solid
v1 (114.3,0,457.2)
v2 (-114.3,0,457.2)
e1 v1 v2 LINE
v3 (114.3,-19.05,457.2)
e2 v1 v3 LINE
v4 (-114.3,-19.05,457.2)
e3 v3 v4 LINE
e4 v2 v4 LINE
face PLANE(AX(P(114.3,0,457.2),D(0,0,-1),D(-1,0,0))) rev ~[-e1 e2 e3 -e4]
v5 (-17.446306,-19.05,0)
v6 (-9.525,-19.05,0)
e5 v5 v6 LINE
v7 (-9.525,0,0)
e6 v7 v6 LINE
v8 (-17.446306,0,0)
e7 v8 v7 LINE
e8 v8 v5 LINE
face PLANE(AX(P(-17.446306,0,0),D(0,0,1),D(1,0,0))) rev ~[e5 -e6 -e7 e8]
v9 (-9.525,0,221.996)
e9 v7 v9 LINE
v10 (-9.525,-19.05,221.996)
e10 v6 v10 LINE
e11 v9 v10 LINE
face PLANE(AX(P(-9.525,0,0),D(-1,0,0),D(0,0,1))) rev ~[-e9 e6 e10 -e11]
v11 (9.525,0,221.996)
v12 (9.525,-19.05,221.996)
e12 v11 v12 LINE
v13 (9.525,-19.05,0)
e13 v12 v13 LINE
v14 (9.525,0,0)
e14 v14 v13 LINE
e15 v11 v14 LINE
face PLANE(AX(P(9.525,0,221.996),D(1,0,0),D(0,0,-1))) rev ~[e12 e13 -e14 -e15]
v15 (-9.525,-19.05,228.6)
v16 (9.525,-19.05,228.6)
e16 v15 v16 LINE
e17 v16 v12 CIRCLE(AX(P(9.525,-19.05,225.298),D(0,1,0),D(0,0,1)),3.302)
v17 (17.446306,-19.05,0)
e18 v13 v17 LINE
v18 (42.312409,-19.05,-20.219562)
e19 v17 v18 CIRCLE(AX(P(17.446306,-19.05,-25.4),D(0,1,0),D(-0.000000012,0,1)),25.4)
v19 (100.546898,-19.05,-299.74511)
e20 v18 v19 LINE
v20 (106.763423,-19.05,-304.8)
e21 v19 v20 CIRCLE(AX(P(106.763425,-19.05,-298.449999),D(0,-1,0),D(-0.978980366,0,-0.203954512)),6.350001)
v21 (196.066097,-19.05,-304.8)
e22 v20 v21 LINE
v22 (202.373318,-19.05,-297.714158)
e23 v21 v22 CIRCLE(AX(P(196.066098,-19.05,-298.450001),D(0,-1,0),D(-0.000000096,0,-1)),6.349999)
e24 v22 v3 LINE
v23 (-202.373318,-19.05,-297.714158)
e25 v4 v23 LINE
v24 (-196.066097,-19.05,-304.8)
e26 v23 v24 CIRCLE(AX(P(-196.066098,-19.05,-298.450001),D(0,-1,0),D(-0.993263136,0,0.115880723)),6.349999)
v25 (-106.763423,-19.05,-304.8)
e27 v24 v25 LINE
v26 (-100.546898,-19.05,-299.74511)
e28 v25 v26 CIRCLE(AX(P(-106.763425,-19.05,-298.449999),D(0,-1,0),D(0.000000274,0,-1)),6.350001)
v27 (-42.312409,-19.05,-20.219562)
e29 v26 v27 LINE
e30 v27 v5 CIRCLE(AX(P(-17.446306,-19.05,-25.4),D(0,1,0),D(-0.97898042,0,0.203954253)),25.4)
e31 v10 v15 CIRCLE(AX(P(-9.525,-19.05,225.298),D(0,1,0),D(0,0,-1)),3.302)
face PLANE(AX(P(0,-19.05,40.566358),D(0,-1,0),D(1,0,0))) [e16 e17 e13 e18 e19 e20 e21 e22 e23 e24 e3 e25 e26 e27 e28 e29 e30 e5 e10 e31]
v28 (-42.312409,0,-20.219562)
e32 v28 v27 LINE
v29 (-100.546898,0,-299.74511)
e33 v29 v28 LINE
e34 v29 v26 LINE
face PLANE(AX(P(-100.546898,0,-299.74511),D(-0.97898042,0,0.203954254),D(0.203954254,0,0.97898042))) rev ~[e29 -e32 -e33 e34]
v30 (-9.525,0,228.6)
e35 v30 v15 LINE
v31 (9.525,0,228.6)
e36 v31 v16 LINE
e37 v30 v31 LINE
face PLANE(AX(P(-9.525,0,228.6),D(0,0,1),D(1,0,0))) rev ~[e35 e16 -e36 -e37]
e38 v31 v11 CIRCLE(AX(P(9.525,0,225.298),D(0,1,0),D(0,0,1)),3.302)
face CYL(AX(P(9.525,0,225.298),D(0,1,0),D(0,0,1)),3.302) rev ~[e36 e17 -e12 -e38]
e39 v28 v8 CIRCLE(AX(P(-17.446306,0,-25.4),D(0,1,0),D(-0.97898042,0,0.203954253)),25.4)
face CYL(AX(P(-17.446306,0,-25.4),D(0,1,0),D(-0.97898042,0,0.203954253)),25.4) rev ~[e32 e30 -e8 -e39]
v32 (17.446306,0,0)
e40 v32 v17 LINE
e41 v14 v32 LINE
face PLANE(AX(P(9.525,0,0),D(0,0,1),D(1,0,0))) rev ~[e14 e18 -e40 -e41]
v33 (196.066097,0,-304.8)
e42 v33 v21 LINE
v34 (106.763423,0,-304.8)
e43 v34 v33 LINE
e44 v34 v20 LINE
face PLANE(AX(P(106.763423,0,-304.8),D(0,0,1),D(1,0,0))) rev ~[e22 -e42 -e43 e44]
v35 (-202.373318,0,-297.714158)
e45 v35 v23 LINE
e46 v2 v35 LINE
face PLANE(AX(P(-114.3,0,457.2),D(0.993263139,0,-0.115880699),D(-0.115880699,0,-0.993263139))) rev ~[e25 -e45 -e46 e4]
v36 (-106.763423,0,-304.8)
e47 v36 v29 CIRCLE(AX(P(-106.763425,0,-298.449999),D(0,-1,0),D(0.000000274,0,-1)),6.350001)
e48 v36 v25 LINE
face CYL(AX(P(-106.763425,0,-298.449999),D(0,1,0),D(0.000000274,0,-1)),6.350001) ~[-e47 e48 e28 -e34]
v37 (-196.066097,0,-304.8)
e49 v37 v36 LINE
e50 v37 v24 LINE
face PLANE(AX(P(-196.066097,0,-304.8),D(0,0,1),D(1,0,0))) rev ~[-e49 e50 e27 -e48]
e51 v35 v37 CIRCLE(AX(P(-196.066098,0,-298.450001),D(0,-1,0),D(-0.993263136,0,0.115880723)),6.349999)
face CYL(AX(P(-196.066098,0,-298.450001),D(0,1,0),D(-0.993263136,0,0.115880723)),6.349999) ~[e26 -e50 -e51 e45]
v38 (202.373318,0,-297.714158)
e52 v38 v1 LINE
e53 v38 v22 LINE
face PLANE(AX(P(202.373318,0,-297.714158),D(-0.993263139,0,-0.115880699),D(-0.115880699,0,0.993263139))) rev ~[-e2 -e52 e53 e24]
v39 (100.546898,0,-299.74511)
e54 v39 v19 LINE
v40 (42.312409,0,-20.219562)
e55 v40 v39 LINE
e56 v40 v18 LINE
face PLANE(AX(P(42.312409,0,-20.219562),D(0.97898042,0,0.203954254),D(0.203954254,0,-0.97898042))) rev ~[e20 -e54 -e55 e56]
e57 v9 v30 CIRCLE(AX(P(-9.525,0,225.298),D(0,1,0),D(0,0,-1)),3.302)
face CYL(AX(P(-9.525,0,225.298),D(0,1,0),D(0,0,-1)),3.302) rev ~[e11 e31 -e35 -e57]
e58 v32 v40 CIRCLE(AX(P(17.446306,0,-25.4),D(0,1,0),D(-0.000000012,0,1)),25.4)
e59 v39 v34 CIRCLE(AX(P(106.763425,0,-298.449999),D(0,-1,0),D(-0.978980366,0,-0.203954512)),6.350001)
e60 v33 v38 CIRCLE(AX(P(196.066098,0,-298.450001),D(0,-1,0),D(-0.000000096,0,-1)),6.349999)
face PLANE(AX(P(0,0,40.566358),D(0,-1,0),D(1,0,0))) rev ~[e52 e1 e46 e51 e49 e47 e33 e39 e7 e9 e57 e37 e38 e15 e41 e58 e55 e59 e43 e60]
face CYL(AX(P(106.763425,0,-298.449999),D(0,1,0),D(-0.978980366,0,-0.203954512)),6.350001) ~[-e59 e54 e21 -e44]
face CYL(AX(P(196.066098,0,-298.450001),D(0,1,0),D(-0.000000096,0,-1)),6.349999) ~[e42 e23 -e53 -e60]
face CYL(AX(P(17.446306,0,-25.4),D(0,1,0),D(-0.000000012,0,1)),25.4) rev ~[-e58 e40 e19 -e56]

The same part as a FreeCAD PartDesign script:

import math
import FreeCAD as App
import Part
import Sketcher
from FreeCAD import Vector
Q = App.Units.Quantity

doc = App.newDocument("Part")
body = doc.addObject("PartDesign::Body", "Body")

# Sketch on XZ plane
sketch1 = doc.addObject("Sketcher::SketchObject", "Sketch")
body.addObject(sketch1)
sketch1.AttachmentSupport = (doc.XZ_Plane, [""])
sketch1.MapMode = "FlatFace"
sketch1.addGeometry([
    Part.LineSegment(Vector(-114.3, 457.2, 0), Vector(-202.373318, -297.714158, 0)),  # 0
    Part.ArcOfCircle(Part.Circle(Vector(-196.066098, -298.450001, 0), Vector(0, 0, 1), 6.349999), math.radians(173.345574), math.radians(270.000006)),  # 1
    Part.LineSegment(Vector(-196.066097, -304.8, 0), Vector(-106.763423, -304.8, 0)),  # 2
    Part.ArcOfCircle(Part.Circle(Vector(-106.763425, -298.449999, 0), Vector(0, 0, 1), 6.350001), math.radians(-89.999984), math.radians(-11.768304)),  # 3
    Part.LineSegment(Vector(-100.546898, -299.74511, 0), Vector(-42.312409, -20.219562, 0)),  # 4
    Part.ArcOfCircle(Part.Circle(Vector(-17.446306, -25.4, 0), Vector(0, 0, 1), 25.4), math.radians(89.999999), math.radians(168.231711)),  # 5
    Part.LineSegment(Vector(-17.446306, 0, 0), Vector(-9.525, 0, 0)),  # 6
    Part.LineSegment(Vector(-9.525, 0, 0), Vector(-9.525, 221.996, 0)),  # 7
    Part.ArcOfCircle(Part.Circle(Vector(-9.525, 225.298, 0), Vector(0, 0, 1), 3.302), math.radians(90), math.radians(270)),  # 8
    Part.LineSegment(Vector(-9.525, 228.6, 0), Vector(9.525, 228.6, 0)),  # 9
    Part.ArcOfCircle(Part.Circle(Vector(9.525, 225.298, 0), Vector(0, 0, 1), 3.302), math.radians(-90), math.radians(90)),  # 10
    Part.LineSegment(Vector(9.525, 221.996, 0), Vector(9.525, 0, 0)),  # 11
    Part.LineSegment(Vector(9.525, 0, 0), Vector(17.446306, 0, 0)),  # 12
    Part.ArcOfCircle(Part.Circle(Vector(17.446306, -25.4, 0), Vector(0, 0, 1), 25.4), math.radians(11.768289), math.radians(90.000001)),  # 13
    Part.LineSegment(Vector(42.312409, -20.219562, 0), Vector(100.546898, -299.74511, 0)),  # 14
    Part.ArcOfCircle(Part.Circle(Vector(106.763425, -298.449999, 0), Vector(0, 0, 1), 6.350001), math.radians(-168.231696), math.radians(-90.000016)),  # 15
    Part.LineSegment(Vector(106.763423, -304.8, 0), Vector(196.066097, -304.8, 0)),  # 16
    Part.ArcOfCircle(Part.Circle(Vector(196.066098, -298.450001, 0), Vector(0, 0, 1), 6.349999), math.radians(-90.000006), math.radians(6.654426)),  # 17
    Part.LineSegment(Vector(202.373318, -297.714158, 0), Vector(114.3, 457.2, 0)),  # 18
    Part.LineSegment(Vector(114.3, 457.2, 0), Vector(-114.3, 457.2, 0)),  # 19
], False)
sketch1.addConstraint([
    Sketcher.Constraint("Tangent", 0, 2, 1, 1),
    Sketcher.Constraint("Tangent", 1, 2, 2, 1),
    Sketcher.Constraint("Tangent", 2, 2, 3, 1),
    Sketcher.Constraint("Tangent", 3, 2, 4, 1),
    Sketcher.Constraint("Tangent", 4, 2, 5, 2),
    Sketcher.Constraint("Tangent", 5, 1, 6, 1),
    Sketcher.Constraint("Coincident", 6, 2, 7, 1),
    Sketcher.Constraint("Coincident", 7, 2, 8, 2),
    Sketcher.Constraint("Tangent", 8, 1, 9, 1),
    Sketcher.Constraint("Tangent", 9, 2, 10, 2),
    Sketcher.Constraint("Coincident", 10, 1, 11, 1),
    Sketcher.Constraint("Coincident", 11, 2, 12, 1),
    Sketcher.Constraint("Tangent", 12, 2, 13, 2),
    Sketcher.Constraint("Tangent", 13, 1, 14, 1),
    Sketcher.Constraint("Tangent", 14, 2, 15, 1),
    Sketcher.Constraint("Tangent", 15, 2, 16, 1),
    Sketcher.Constraint("Tangent", 16, 2, 17, 1),
    Sketcher.Constraint("Tangent", 17, 2, 18, 1),
    Sketcher.Constraint("Coincident", 18, 2, 19, 1),
    Sketcher.Constraint("Coincident", 19, 2, 0, 1),
    Sketcher.Constraint("Horizontal", 2),
    Sketcher.Constraint("Horizontal", 6),
    Sketcher.Constraint("Vertical", 7),
    Sketcher.Constraint("Horizontal", 9),
    Sketcher.Constraint("Vertical", 11),
    Sketcher.Constraint("Horizontal", 12),
    Sketcher.Constraint("Horizontal", 16),
    Sketcher.Constraint("Horizontal", 19),
    Sketcher.Constraint("Equal", 1, 3),
    Sketcher.Constraint("Equal", 8, 10),
    Sketcher.Constraint("Equal", 5, 13),
    Sketcher.Constraint("Equal", 3, 15),
    Sketcher.Constraint("Equal", 15, 17),
    Sketcher.Constraint("Symmetric", 6, 2, 11, 2, -1, 1),
    Sketcher.Constraint("Symmetric", 5, 3, 13, 3, -2),
    Sketcher.Constraint("Symmetric", 3, 3, 15, 3, -2),
    Sketcher.Constraint("Vertical", 8, 3, 6, 2),
    Sketcher.Constraint("Vertical", 9, 2, 10, 1),
    Sketcher.Constraint("Equal", 2, 16),
    Sketcher.Constraint("Equal", 0, 18),
    Sketcher.Constraint("Radius", 5, Q("1 in")),
    Sketcher.Constraint("DistanceX", 19, 2, 19, 1, Q("9 in")),
    Sketcher.Constraint("Radius", 1, Q("0.25 in")),
    Sketcher.Constraint("Radius", 8, Q("0.13 in")),
    Sketcher.Constraint("DistanceY", 1, 2, -1, 1, Q("12 in")),
    Sketcher.Constraint("DistanceY", -1, 1, 8, 1, Q("9 in")),
    Sketcher.Constraint("DistanceY", -1, 1, 18, 2, Q("18 in")),
    Sketcher.Constraint("DistanceX", 9, 1, 9, 2, Q("0.75 in")),
    Sketcher.Constraint("DistanceX", 1, 3, 13, 3, Q("8.4060002 in")),
    Sketcher.Constraint("DistanceX", -1, 1, 14, 2, Q("100.546898 mm")),
    Sketcher.Constraint("DistanceX", 1, 3, 3, 2, Q("95.5192 mm")),
])
pad1 = doc.addObject("PartDesign::Pad", "Pad")
body.addObject(pad1)
pad1.Profile = sketch1
pad1.Length = Q("0.75 in")

doc.recompute()
